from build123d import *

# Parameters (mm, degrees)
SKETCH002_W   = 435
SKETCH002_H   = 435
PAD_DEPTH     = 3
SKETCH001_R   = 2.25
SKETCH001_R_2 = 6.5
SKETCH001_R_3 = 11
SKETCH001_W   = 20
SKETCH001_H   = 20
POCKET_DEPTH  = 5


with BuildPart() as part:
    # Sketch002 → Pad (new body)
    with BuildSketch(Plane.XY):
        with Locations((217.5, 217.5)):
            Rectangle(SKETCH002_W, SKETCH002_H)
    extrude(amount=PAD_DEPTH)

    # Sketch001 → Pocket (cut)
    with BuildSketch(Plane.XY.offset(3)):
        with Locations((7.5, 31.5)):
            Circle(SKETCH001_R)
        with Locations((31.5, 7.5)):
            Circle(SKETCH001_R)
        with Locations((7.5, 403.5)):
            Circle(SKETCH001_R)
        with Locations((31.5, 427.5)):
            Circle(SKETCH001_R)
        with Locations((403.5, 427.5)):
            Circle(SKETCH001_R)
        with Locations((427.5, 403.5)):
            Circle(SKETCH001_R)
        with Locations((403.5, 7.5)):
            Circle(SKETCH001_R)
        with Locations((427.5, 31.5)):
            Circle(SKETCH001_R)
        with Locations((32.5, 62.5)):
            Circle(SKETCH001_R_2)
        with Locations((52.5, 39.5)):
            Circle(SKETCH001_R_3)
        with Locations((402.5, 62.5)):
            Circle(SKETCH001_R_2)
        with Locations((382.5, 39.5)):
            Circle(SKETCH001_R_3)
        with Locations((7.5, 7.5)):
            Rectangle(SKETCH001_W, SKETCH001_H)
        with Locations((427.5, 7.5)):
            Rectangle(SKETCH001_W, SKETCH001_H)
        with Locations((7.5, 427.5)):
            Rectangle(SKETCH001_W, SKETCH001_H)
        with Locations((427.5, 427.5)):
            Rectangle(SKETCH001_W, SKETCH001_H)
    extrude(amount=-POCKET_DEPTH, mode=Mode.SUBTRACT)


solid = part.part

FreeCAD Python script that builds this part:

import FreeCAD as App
import Part
import Sketcher
Q = App.Units.Quantity


def add_polygon(sketch, points):
    """Adds a closed chain of lines whose ends are joined by coincident constraints."""
    first, n = sketch.GeometryCount, len(points)
    for a, b in zip(points, points[1:] + points[:1]):
        sketch.addGeometry(Part.LineSegment(App.Vector(*a, 0), App.Vector(*b, 0)), False)
    for i in range(n):
        sketch.addConstraint(Sketcher.Constraint("Coincident", first + i, 2, first + (i + 1) % n, 1))

doc = App.newDocument("Part")
body = doc.addObject("PartDesign::Body", "Body")

sketch1 = body.newObject("Sketcher::SketchObject", "Sketch")
sketch1.AttachmentSupport = (doc.getObject("XY_Plane"), [""])
sketch1.MapMode = "FlatFace"
add_polygon(sketch1, [(0, 435), (0, 0), (435, 0), (435, 435)])
sketch1.addConstraint(Sketcher.Constraint("Vertical", 0))
sketch1.addConstraint(Sketcher.Constraint("Horizontal", 1))
sketch1.addConstraint(Sketcher.Constraint("Vertical", 2))
sketch1.addConstraint(Sketcher.Constraint("Horizontal", 3))
sketch1.addConstraint(Sketcher.Constraint("Coincident", 0, 2, -1, 1))
sketch1.addConstraint(Sketcher.Constraint("Equal", 3, 0))
sketch1.addConstraint(Sketcher.Constraint("DistanceX", 1, 1, 1, 2, Q("435 mm")))
pad1 = body.newObject("PartDesign::Pad", "Pad")
pad1.Profile = sketch1
pad1.Length = 3

sketch2 = body.newObject("Sketcher::SketchObject", "Sketch001")
sketch2.AttachmentSupport = (doc.getObject("XY_Plane"), [""])
sketch2.MapMode = "FlatFace"
sketch2.AttachmentOffset = App.Placement(App.Vector(0, 0, 3), App.Rotation())
sketch2.addGeometry(Part.Circle(App.Vector(7.5, 31.5, 0), App.Vector(0, 0, 1), 2.2), False)
sketch2.addGeometry(Part.Circle(App.Vector(31.5, 7.5, 0), App.Vector(0, 0, 1), 2.2), False)
sketch2.addGeometry(Part.Circle(App.Vector(7.5, 403.5, 0), App.Vector(0, 0, 1), 2.2), False)
sketch2.addGeometry(Part.Circle(App.Vector(31.5, 427.5, 0), App.Vector(0, 0, 1), 2.2), False)
sketch2.addGeometry(Part.Circle(App.Vector(403.5, 427.5, 0), App.Vector(0, 0, 1), 2.2), False)
sketch2.addGeometry(Part.Circle(App.Vector(427.5, 403.5, 0), App.Vector(0, 0, 1), 2.2), False)
sketch2.addGeometry(Part.Circle(App.Vector(403.5, 7.5, 0), App.Vector(0, 0, 1), 2.2), False)
sketch2.addGeometry(Part.Circle(App.Vector(427.5, 31.5, 0), App.Vector(0, 0, 1), 2.2), False)
sketch2.addGeometry(Part.Circle(App.Vector(32.5, 62.5, 0), App.Vector(0, 0, 1), 6.5), False)
sketch2.addGeometry(Part.Circle(App.Vector(52.5, 39.5, 0), App.Vector(0, 0, 1), 11), False)
sketch2.addGeometry(Part.Circle(App.Vector(402.5, 62.5, 0), App.Vector(0, 0, 1), 6.5), False)
sketch2.addGeometry(Part.Circle(App.Vector(382.5, 39.5, 0), App.Vector(0, 0, 1), 11), False)
add_polygon(sketch2, [(-2.5, 17.5), (-2.5, -2.5), (17.5, -2.5), (17.5, 17.5)])
add_polygon(sketch2, [(417.5, 17.5), (417.5, -2.5), (437.5, -2.5), (437.5, 17.5)])
add_polygon(sketch2, [(-2.5, 437.5), (-2.5, 417.5), (17.5, 417.5), (17.5, 437.5)])
add_polygon(sketch2, [(417.5, 437.5), (417.5, 417.5), (437.5, 417.5), (437.5, 437.5)])
sketch2.addConstraint(Sketcher.Constraint("Vertical", 12))
sketch2.addConstraint(Sketcher.Constraint("Horizontal", 13))
sketch2.addConstraint(Sketcher.Constraint("Vertical", 14))
sketch2.addConstraint(Sketcher.Constraint("Horizontal", 15))
sketch2.addConstraint(Sketcher.Constraint("Vertical", 16))
sketch2.addConstraint(Sketcher.Constraint("Horizontal", 17))
sketch2.addConstraint(Sketcher.Constraint("Vertical", 18))
sketch2.addConstraint(Sketcher.Constraint("Horizontal", 19))
sketch2.addConstraint(Sketcher.Constraint("Vertical", 20))
sketch2.addConstraint(Sketcher.Constraint("Horizontal", 21))
sketch2.addConstraint(Sketcher.Constraint("Vertical", 22))
sketch2.addConstraint(Sketcher.Constraint("Horizontal", 23))
sketch2.addConstraint(Sketcher.Constraint("Vertical", 24))
sketch2.addConstraint(Sketcher.Constraint("Horizontal", 25))
sketch2.addConstraint(Sketcher.Constraint("Vertical", 26))
sketch2.addConstraint(Sketcher.Constraint("Horizontal", 27))
sketch2.addConstraint(Sketcher.Constraint("Equal", 0, 1))
sketch2.addConstraint(Sketcher.Constraint("Equal", 1, 2))
sketch2.addConstraint(Sketcher.Constraint("Equal", 2, 3))
sketch2.addConstraint(Sketcher.Constraint("Equal", 3, 4))
sketch2.addConstraint(Sketcher.Constraint("Equal", 4, 5))
sketch2.addConstraint(Sketcher.Constraint("Equal", 5, 6))
sketch2.addConstraint(Sketcher.Constraint("Equal", 6, 7))
sketch2.addConstraint(Sketcher.Constraint("Equal", 8, 10))
sketch2.addConstraint(Sketcher.Constraint("Equal", 9, 11))
sketch2.addConstraint(Sketcher.Constraint("Horizontal", 3, 3, 4, 3))
sketch2.addConstraint(Sketcher.Constraint("Horizontal", 2, 3, 5, 3))
sketch2.addConstraint(Sketcher.Constraint("Horizontal", 1, 3, 6, 3))
sketch2.addConstraint(Sketcher.Constraint("Horizontal", 0, 3, 7, 3))
sketch2.addConstraint(Sketcher.Constraint("Horizontal", 8, 3, 10, 3))
sketch2.addConstraint(Sketcher.Constraint("Horizontal", 9, 3, 11, 3))
sketch2.addConstraint(Sketcher.Constraint("Horizontal", 13, 2, 16, 2))
sketch2.addConstraint(Sketcher.Constraint("Horizontal", 15, 2, 18, 2))
sketch2.addConstraint(Sketcher.Constraint("Horizontal", 21, 2, 24, 2))
sketch2.addConstraint(Sketcher.Constraint("Horizontal", 23, 2, 26, 2))
sketch2.addConstraint(Sketcher.Constraint("Vertical", 0, 3, 2, 3))
sketch2.addConstraint(Sketcher.Constraint("Vertical", 1, 3, 3, 3))
sketch2.addConstraint(Sketcher.Constraint("Vertical", 4, 3, 6, 3))
sketch2.addConstraint(Sketcher.Constraint("Vertical", 5, 3, 7, 3))
sketch2.addConstraint(Sketcher.Constraint("Vertical", 15, 2, 20, 2))
sketch2.addConstraint(Sketcher.Constraint("Vertical", 14, 2, 21, 2))
sketch2.addConstraint(Sketcher.Constraint("Vertical", 19, 2, 24, 2))
sketch2.addConstraint(Sketcher.Constraint("Vertical", 18, 2, 25, 2))
sketch2.addConstraint(Sketcher.Constraint("Equal", 15, 17))
sketch2.addConstraint(Sketcher.Constraint("Equal", 27, 12))
sketch2.addConstraint(Sketcher.Constraint("Equal", 18, 20))
sketch2.addConstraint(Sketcher.Constraint("Diameter", 8, Q("13 mm")))
sketch2.addConstraint(Sketcher.Constraint("Diameter", 9, Q("22 mm")))
sketch2.addConstraint(Sketcher.Constraint("Diameter", 0, Q("4.5 mm")))
sketch2.addConstraint(Sketcher.Constraint("DistanceX", 13, 1, 13, 2, Q("20 mm")))
sketch2.addConstraint(Sketcher.Constraint("DistanceX", 0, 3, 1, 3, Q("24 mm")))
sketch2.addConstraint(Sketcher.Constraint("DistanceY", 1, 3, 0, 3, Q("24 mm")))
sketch2.addConstraint(Sketcher.Constraint("DistanceY", 0, 3, 2, 3, Q("372 mm")))
sketch2.addConstraint(Sketcher.Constraint("DistanceY", 2, 3, 3, 3, Q("24 mm")))
sketch2.addConstraint(Sketcher.Constraint("DistanceX", 3, 3, 4, 3, Q("372 mm")))
sketch2.addConstraint(Sketcher.Constraint("DistanceX", 4, 3, 5, 3, Q("24 mm")))
sketch2.addConstraint(Sketcher.Constraint("DistanceX", 0, 3, 8, 3, Q("25 mm")))
sketch2.addConstraint(Sketcher.Constraint("DistanceY", 0, 3, 8, 3, Q("31 mm")))
sketch2.addConstraint(Sketcher.Constraint("DistanceX", 8, 3, 9, 3, Q("20 mm")))
sketch2.addConstraint(Sketcher.Constraint("DistanceY", 9, 3, 8, 3, Q("23 mm")))
sketch2.addConstraint(Sketcher.Constraint("DistanceX", 10, 3, 7, 3, Q("25 mm")))
sketch2.addConstraint(Sketcher.Constraint("DistanceX", 11, 3, 10, 3, Q("20 mm")))
sketch2.addConstraint(Sketcher.Constraint("DistanceX", 12, 2, 0, 3, Q("10 mm")))
sketch2.addConstraint(Sketcher.Constraint("DistanceY", 12, 2, 0, 3, Q("34 mm")))
sketch2.addConstraint(Sketcher.Constraint("DistanceX", 6, 3, 16, 2, Q("14 mm")))
sketch2.addConstraint(Sketcher.Constraint("DistanceY", 2, 3, 20, 2, Q("14 mm")))
sketch2.addConstraint(Sketcher.Constraint("DistanceX", -1, 1, 0, 3, Q("7.5 mm")))
sketch2.addConstraint(Sketcher.Constraint("DistanceY", -1, 1, 0, 3, Q("31.5 mm")))
pocket1 = body.newObject("PartDesign::Pocket", "Pocket")
pocket1.Profile = sketch2
pocket1.Length = 5

doc.recompute()
